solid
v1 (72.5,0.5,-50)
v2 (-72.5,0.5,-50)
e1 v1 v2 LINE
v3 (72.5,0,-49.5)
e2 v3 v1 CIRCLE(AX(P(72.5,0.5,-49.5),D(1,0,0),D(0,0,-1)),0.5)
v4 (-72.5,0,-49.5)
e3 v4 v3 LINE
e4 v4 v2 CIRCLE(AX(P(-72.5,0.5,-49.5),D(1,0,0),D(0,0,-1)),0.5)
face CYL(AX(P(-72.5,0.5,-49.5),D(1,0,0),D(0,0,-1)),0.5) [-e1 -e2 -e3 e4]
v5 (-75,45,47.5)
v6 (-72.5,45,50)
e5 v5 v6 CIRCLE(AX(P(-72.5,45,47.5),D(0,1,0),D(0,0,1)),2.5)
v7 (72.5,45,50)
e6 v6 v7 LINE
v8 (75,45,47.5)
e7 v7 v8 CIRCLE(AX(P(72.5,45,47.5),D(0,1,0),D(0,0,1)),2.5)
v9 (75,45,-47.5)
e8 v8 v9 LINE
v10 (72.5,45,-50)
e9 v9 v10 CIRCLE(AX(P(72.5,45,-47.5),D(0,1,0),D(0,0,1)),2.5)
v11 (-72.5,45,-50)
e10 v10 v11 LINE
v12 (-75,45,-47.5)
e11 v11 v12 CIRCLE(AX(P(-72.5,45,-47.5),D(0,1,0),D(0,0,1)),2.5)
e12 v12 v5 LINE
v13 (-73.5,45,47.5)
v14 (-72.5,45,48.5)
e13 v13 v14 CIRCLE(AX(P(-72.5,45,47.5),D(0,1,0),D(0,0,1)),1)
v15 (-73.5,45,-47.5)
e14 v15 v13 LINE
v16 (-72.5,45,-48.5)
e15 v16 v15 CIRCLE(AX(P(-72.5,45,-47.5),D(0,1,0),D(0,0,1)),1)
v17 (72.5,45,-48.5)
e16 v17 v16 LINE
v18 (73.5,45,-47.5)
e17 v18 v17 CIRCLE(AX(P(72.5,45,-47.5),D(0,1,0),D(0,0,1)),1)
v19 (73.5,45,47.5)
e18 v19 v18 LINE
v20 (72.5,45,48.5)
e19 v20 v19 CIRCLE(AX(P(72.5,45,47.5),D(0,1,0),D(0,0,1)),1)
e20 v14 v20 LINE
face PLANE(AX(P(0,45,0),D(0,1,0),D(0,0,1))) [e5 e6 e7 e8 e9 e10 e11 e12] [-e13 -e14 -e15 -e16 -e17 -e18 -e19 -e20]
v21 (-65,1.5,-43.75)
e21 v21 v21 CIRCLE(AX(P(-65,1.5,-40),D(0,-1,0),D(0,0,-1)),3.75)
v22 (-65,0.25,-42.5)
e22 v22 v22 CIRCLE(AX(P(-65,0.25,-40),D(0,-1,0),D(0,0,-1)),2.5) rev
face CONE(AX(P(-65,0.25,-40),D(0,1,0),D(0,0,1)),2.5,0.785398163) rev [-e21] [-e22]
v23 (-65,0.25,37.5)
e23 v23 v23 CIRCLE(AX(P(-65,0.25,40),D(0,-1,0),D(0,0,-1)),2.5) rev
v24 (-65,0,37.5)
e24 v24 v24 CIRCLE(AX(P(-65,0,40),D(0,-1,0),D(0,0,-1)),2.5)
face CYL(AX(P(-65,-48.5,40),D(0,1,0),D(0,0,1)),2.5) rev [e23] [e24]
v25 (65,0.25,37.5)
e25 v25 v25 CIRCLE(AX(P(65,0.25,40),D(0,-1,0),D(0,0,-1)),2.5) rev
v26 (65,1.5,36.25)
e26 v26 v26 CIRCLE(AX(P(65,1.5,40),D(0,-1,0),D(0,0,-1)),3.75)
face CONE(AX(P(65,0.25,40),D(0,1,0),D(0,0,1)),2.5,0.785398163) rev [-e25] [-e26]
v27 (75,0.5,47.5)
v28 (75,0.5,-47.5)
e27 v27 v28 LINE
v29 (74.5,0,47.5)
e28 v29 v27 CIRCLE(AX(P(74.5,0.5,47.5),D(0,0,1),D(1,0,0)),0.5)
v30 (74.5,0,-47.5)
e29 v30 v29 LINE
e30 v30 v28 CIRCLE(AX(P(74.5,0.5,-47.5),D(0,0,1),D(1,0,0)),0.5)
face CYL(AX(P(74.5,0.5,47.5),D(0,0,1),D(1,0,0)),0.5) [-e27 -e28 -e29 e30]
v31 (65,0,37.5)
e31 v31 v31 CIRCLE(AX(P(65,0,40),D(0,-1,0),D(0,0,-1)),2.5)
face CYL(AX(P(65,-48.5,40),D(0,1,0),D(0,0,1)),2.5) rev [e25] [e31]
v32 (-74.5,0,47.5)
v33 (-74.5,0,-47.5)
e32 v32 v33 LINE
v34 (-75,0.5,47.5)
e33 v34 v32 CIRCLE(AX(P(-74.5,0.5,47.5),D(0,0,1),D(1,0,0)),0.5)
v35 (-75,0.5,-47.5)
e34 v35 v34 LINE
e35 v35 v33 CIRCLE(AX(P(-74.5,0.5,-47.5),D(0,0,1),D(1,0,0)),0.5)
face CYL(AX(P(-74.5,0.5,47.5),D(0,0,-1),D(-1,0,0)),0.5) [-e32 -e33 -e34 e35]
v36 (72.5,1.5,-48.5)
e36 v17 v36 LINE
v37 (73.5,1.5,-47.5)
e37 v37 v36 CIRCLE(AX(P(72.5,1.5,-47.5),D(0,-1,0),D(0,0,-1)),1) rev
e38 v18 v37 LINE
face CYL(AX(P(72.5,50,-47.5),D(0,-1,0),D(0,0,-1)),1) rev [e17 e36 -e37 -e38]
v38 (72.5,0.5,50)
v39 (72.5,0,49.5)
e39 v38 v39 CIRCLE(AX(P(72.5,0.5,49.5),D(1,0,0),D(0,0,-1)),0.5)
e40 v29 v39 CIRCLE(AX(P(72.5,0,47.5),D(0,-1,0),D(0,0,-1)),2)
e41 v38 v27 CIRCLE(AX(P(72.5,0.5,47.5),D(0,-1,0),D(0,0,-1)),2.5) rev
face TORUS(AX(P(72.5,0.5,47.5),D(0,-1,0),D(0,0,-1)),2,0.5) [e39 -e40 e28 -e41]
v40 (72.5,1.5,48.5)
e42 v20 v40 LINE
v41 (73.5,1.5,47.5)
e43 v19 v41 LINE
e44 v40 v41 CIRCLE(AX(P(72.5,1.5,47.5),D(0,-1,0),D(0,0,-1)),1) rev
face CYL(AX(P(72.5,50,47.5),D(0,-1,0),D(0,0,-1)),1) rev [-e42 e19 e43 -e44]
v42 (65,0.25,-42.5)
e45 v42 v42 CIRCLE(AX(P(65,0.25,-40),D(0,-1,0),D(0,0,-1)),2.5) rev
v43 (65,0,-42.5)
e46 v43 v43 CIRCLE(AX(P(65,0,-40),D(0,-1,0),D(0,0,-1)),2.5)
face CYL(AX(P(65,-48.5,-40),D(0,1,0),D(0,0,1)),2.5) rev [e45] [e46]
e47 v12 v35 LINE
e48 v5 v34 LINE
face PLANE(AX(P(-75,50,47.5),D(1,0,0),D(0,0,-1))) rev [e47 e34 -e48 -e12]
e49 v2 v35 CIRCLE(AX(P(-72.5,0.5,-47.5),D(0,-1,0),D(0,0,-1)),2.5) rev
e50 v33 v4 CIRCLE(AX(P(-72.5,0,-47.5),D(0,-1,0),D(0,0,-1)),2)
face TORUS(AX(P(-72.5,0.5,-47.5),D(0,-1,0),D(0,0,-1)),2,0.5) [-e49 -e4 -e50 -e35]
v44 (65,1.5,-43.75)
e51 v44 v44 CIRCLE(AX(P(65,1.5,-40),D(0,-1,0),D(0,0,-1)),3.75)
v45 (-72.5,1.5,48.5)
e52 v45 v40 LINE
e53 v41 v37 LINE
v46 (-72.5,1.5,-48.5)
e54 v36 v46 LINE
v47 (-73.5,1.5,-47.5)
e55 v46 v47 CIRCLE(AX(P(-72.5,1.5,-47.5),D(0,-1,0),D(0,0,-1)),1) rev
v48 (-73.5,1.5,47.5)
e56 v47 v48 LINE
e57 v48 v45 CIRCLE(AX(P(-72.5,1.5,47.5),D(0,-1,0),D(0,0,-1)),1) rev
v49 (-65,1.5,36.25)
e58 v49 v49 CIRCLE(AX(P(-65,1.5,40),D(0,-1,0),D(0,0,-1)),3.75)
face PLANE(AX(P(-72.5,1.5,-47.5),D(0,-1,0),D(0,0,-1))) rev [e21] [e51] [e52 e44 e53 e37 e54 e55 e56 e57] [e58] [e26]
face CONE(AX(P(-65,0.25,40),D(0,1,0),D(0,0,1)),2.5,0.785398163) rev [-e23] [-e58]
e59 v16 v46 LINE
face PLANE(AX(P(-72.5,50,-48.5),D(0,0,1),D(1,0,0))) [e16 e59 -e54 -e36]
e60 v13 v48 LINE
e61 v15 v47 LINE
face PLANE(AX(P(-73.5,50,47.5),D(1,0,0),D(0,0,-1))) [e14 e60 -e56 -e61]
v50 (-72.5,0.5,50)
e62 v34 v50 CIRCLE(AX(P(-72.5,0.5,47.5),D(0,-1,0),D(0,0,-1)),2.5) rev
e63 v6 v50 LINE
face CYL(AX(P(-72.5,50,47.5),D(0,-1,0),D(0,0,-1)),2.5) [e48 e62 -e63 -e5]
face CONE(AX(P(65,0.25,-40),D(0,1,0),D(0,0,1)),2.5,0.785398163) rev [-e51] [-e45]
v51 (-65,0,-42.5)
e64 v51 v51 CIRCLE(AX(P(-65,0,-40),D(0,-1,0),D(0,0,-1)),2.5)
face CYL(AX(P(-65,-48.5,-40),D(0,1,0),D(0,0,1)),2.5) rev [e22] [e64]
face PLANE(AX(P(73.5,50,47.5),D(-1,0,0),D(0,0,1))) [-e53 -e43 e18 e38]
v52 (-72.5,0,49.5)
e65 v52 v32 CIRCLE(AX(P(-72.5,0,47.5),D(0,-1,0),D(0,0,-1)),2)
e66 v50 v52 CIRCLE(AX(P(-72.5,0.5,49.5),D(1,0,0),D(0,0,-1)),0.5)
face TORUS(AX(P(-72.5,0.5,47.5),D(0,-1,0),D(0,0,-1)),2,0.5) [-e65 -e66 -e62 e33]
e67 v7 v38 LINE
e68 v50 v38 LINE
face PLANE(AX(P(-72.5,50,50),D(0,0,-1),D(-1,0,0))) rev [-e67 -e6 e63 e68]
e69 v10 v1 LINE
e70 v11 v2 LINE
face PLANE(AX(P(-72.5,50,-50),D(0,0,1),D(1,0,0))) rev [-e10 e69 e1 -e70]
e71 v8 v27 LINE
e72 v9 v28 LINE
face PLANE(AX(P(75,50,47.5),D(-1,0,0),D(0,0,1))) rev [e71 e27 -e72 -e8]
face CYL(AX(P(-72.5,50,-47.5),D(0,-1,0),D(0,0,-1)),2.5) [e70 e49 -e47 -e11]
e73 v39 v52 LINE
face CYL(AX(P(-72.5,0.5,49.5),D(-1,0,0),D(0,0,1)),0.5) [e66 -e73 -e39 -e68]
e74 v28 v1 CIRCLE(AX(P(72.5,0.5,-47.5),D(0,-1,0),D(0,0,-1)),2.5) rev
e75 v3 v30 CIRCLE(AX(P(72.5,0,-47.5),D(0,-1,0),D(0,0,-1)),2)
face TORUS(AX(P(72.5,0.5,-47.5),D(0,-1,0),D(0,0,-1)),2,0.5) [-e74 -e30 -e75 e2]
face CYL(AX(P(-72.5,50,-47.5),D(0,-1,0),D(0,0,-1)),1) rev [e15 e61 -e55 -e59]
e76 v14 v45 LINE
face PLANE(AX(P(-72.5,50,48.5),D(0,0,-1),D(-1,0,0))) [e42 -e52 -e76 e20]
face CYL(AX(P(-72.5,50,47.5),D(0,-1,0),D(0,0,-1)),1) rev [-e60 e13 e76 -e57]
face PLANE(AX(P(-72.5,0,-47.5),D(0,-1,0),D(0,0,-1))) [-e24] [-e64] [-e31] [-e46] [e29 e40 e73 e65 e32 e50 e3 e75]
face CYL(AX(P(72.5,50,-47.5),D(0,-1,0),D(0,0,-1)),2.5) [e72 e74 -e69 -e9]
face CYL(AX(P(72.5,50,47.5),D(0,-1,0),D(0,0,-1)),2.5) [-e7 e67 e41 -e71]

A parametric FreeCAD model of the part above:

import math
import FreeCAD as App
import Part
import Sketcher
from FreeCAD import Vector


def edges_at(feature, points):
    """Names of the edges that pass closest to the given points."""
    edges = feature.Shape.Edges
    near = lambda p: min(range(len(edges)), key=lambda i: edges[i].distToShape(Part.Vertex(*p))[0])
    return sorted({f"Edge{near(p) + 1}" for p in points})


def faces_at(feature, points):
    """Names of the faces that lie closest to the given points."""
    faces = feature.Shape.Faces
    near = lambda p: min(range(len(faces)), key=lambda i: faces[i].distToShape(Part.Vertex(*p))[0])
    return sorted({f"Face{near(p) + 1}" for p in points})


def add_polygon(sketch, points):
    """Adds a closed chain of lines whose ends are joined by coincident constraints."""
    first, n = sketch.GeometryCount, len(points)
    for a, b in zip(points, points[1:] + points[:1]):
        sketch.addGeometry(Part.LineSegment(App.Vector(*a, 0), App.Vector(*b, 0)), False)
    for i in range(n):
        sketch.addConstraint(Sketcher.Constraint("Coincident", first + i, 2, first + (i + 1) % n, 1))

doc = App.newDocument("Part")
params = doc.addObject("Spreadsheet::Sheet", "Params")
for row, (alias, value) in enumerate([
    ("sketch1_radius", "2.5 mm"),
    ("sketch1_width", "145 mm"),
    ("sketch1_height", "95 mm"),
    ("pad1_length", "50 mm"),
    ("thickness_wall", "1.5 mm"),
    ("sketch2_diameter", "5 mm"),
    ("pocket1_length", "50 mm"),
    ("sketch3_radius", "1.5 mm"),
    ("pocket2_length", "5 mm"),
    ("pocket2_taper", "-0.5 deg"),
    ("fillet_radius", "0.5 mm"),
    ("chamfer_size", "1.25 mm"),
], start=1):
    params.set(f"A{row}", alias)
    params.set(f"B{row}", "=" + value)
    params.setAlias(f"B{row}", alias)

body = doc.addObject("PartDesign::Body", "Body")

# Sketch on XZ plane
sketch1 = body.newObject("Sketcher::SketchObject", "Sketch")
sketch1.AttachmentSupport = (doc.getObject("XZ_Plane"), [""])
sketch1.MapMode = "FlatFace"
sketch1.addGeometry([
    Part.LineSegment(Vector(-72.5, 50, 0), Vector(72.5, 50, 0)),  # 0
    Part.ArcOfCircle(Part.Circle(Vector(72.5, 47.5, 0), Vector(0, 0, 1), 2.5), math.radians(0), math.radians(90)),  # 1
    Part.LineSegment(Vector(75, 47.5, 0), Vector(75, -47.5, 0)),  # 2
    Part.ArcOfCircle(Part.Circle(Vector(72.5, -47.5, 0), Vector(0, 0, 1), 2.5), math.radians(-90), math.radians(0)),  # 3
    Part.LineSegment(Vector(72.5, -50, 0), Vector(-72.5, -50, 0)),  # 4
    Part.ArcOfCircle(Part.Circle(Vector(-72.5, -47.5, 0), Vector(0, 0, 1), 2.5), math.radians(180), math.radians(270)),  # 5
    Part.LineSegment(Vector(-75, -47.5, 0), Vector(-75, 47.5, 0)),  # 6
    Part.ArcOfCircle(Part.Circle(Vector(-72.5, 47.5, 0), Vector(0, 0, 1), 2.5), math.radians(90), math.radians(180)),  # 7
], False)
sketch1.addConstraint([
    Sketcher.Constraint("Tangent", 0, 2, 1, 2),
    Sketcher.Constraint("Tangent", 1, 1, 2, 1),
    Sketcher.Constraint("Tangent", 2, 2, 3, 2),
    Sketcher.Constraint("Tangent", 3, 1, 4, 1),
    Sketcher.Constraint("Tangent", 4, 2, 5, 2),
    Sketcher.Constraint("Tangent", 5, 1, 6, 1),
    Sketcher.Constraint("Tangent", 6, 2, 7, 2),
    Sketcher.Constraint("Tangent", 7, 1, 0, 1),
    Sketcher.Constraint("Horizontal", 0),
    Sketcher.Constraint("Vertical", 2),
    Sketcher.Constraint("Horizontal", 4),
    Sketcher.Constraint("Vertical", 6),
    Sketcher.Constraint("Equal", 1, 3),
    Sketcher.Constraint("Equal", 3, 5),
    Sketcher.Constraint("Equal", 5, 7),
    Sketcher.Constraint("Symmetric", 1, 3, 5, 3, -1, 1),
    Sketcher.Constraint("Radius", 1, 2.5),
    Sketcher.Constraint("DistanceX", 0, 1, 0, 2, 145.0),
    Sketcher.Constraint("DistanceY", 2, 2, 2, 1, 95.0),
])
sketch1.setExpression("Constraints[16]", "Params.sketch1_radius")
sketch1.setExpression("Constraints[17]", "Params.sketch1_width")
sketch1.setExpression("Constraints[18]", "Params.sketch1_height")
pad1 = body.newObject("PartDesign::Pad", "Pad")
pad1.Profile = sketch1
pad1.setExpression("Length", "Params.pad1_length")
pad1.Reversed = True
doc.recompute()

thickness = body.newObject("PartDesign::Thickness", "Thickness")
thickness.Base = (pad1, faces_at(pad1, [(0, 50, 0)]))
thickness.setExpression("Value", "Params.thickness_wall")
thickness.Reversed = True
thickness.Join = "Intersection"

# Sketch on XZ plane
sketch2 = body.newObject("Sketcher::SketchObject", "Sketch001")
sketch2.AttachmentSupport = (doc.getObject("XZ_Plane"), [""])
sketch2.MapMode = "FlatFace"
sketch2.AttachmentOffset = App.Placement(Vector(0, 0, -1.5), App.Rotation())
sketch2.addGeometry([
    Part.Circle(Vector(-65, -40, 0), Vector(0, 0, 1), 2.5),
    Part.Circle(Vector(65, -40, 0), Vector(0, 0, 1), 2.5),
    Part.Circle(Vector(65, 40, 0), Vector(0, 0, 1), 2.5),
    Part.Circle(Vector(-65, 40, 0), Vector(0, 0, 1), 2.5),
], False)
sketch2.addConstraint([
    Sketcher.Constraint("Equal", 0, 1),
    Sketcher.Constraint("Equal", 1, 2),
    Sketcher.Constraint("Equal", 2, 3),
    Sketcher.Constraint("Symmetric", 0, 3, 2, 3, -1, 1),
    Sketcher.Constraint("Symmetric", 1, 3, 3, 3, -1, 1),
    Sketcher.Constraint("Symmetric", 0, 3, 1, 3, -2),
    Sketcher.Constraint("Diameter", 0, 5.0),
    Sketcher.Constraint("DistanceX", 0, 3, -1, 1, 65.0),
    Sketcher.Constraint("DistanceY", 0, 3, -1, 1, 40.0),
])
sketch2.setExpression("Constraints[6]", "Params.sketch2_diameter")
pocket1 = body.newObject("PartDesign::Pocket", "Pocket")
pocket1.Profile = sketch2
pocket1.setExpression("Length", "Params.pocket1_length")
pocket1.Reversed = True

# Sketch on XZ plane
sketch3 = body.newObject("Sketcher::SketchObject", "Sketch002")
sketch3.AttachmentSupport = (doc.getObject("XZ_Plane"), [""])
sketch3.MapMode = "FlatFace"
sketch3.AttachmentOffset = App.Placement(Vector(0, 0, -50), App.Rotation())
add_polygon(sketch3, [(-94.8, -69.8), (-94.8, 69.8), (94.8, 69.8), (94.8, -69.8)])  # lines 0-3
sketch3.addGeometry(Part.LineSegment(Vector(69.2, 45.7, 0), Vector(-69.2, 45.7, 0)), False)  # 4
sketch3.addGeometry(Part.ArcOfCircle(Part.Circle(Vector(-69.2, 44.2, 0), Vector(0, 0, 1), 1.5), math.radians(90), math.radians(180)), False)  # 5
sketch3.addGeometry(Part.LineSegment(Vector(-70.7, 44.2, 0), Vector(-70.7, -44.2, 0)), False)  # 6
sketch3.addGeometry(Part.ArcOfCircle(Part.Circle(Vector(-69.2, -44.2, 0), Vector(0, 0, 1), 1.5), math.radians(180), math.radians(270)), False)  # 7
sketch3.addGeometry(Part.LineSegment(Vector(-69.2, -45.7, 0), Vector(69.2, -45.7, 0)), False)  # 8
sketch3.addGeometry(Part.ArcOfCircle(Part.Circle(Vector(69.2, -44.2, 0), Vector(0, 0, 1), 1.5), math.radians(-90), math.radians(0)), False)  # 9
sketch3.addGeometry(Part.LineSegment(Vector(70.7, -44.2, 0), Vector(70.7, 44.2, 0)), False)  # 10
sketch3.addGeometry(Part.ArcOfCircle(Part.Circle(Vector(69.2, 44.2, 0), Vector(0, 0, 1), 1.5), math.radians(0), math.radians(90)), False)  # 11
sketch3.addConstraint([
    Sketcher.Constraint("Tangent", 4, 2, 5, 1),
    Sketcher.Constraint("Tangent", 5, 2, 6, 1),
    Sketcher.Constraint("Tangent", 6, 2, 7, 1),
    Sketcher.Constraint("Tangent", 7, 2, 8, 1),
    Sketcher.Constraint("Tangent", 8, 2, 9, 1),
    Sketcher.Constraint("Tangent", 9, 2, 10, 1),
    Sketcher.Constraint("Tangent", 10, 2, 11, 1),
    Sketcher.Constraint("Tangent", 11, 2, 4, 1),
    Sketcher.Constraint("Vertical", 0),
    Sketcher.Constraint("Horizontal", 1),
    Sketcher.Constraint("Vertical", 2),
    Sketcher.Constraint("Horizontal", 3),
    Sketcher.Constraint("Horizontal", 4),
    Sketcher.Constraint("Vertical", 6),
    Sketcher.Constraint("Horizontal", 8),
    Sketcher.Constraint("Vertical", 10),
    Sketcher.Constraint("Equal", 5, 7),
    Sketcher.Constraint("Equal", 7, 9),
    Sketcher.Constraint("Equal", 9, 11),
    Sketcher.Constraint("Symmetric", 5, 3, 9, 3, -1, 1),
    Sketcher.Constraint("Symmetric", 0, 2, 2, 2, -1, 1),
    Sketcher.Constraint("Radius", 5, 1.5),
    Sketcher.Constraint("DistanceX", 1, 1, 1, 2, 189.504),
    Sketcher.Constraint("DistanceY", 0, 1, 0, 2, 139.504),
    Sketcher.Constraint("DistanceX", 4, 2, 4, 1, 138.464466),
    Sketcher.Constraint("DistanceY", 6, 2, 6, 1, 88.464466),
])
sketch3.setExpression("Constraints[25]", "Params.sketch3_radius")
pocket2 = body.newObject("PartDesign::Pocket", "Pocket001")
pocket2.Profile = sketch3
pocket2.setExpression("Length", "Params.pocket2_length")
pocket2.Reversed = True
pocket2.setExpression("TaperAngle", "Params.pocket2_taper")
doc.recompute()

fillet = body.newObject("PartDesign::Fillet", "Fillet")
fillet.Base = (pocket2, edges_at(pocket2, [
    (-75, 0, 0),
    (-74.268, 0, -49.268),
    (0, 0, -50),
    (74.268, 0, -49.268),
    (75, 0, 0),
    (74.268, 0, 49.268),
    (0, 0, 50),
    (-74.268, 0, 49.268),
]))
fillet.setExpression("Radius", "Params.fillet_radius")
doc.recompute()

chamfer = body.newObject("PartDesign::Chamfer", "Chamfer")
chamfer.Base = (fillet, edges_at(fillet, [
    (-67.5, 1.5, -40),
    (62.5, 1.5, -40),
    (62.5, 1.5, 40),
    (-67.5, 1.5, 40),
]))
chamfer.setExpression("Size", "Params.chamfer_size")

doc.recompute()
